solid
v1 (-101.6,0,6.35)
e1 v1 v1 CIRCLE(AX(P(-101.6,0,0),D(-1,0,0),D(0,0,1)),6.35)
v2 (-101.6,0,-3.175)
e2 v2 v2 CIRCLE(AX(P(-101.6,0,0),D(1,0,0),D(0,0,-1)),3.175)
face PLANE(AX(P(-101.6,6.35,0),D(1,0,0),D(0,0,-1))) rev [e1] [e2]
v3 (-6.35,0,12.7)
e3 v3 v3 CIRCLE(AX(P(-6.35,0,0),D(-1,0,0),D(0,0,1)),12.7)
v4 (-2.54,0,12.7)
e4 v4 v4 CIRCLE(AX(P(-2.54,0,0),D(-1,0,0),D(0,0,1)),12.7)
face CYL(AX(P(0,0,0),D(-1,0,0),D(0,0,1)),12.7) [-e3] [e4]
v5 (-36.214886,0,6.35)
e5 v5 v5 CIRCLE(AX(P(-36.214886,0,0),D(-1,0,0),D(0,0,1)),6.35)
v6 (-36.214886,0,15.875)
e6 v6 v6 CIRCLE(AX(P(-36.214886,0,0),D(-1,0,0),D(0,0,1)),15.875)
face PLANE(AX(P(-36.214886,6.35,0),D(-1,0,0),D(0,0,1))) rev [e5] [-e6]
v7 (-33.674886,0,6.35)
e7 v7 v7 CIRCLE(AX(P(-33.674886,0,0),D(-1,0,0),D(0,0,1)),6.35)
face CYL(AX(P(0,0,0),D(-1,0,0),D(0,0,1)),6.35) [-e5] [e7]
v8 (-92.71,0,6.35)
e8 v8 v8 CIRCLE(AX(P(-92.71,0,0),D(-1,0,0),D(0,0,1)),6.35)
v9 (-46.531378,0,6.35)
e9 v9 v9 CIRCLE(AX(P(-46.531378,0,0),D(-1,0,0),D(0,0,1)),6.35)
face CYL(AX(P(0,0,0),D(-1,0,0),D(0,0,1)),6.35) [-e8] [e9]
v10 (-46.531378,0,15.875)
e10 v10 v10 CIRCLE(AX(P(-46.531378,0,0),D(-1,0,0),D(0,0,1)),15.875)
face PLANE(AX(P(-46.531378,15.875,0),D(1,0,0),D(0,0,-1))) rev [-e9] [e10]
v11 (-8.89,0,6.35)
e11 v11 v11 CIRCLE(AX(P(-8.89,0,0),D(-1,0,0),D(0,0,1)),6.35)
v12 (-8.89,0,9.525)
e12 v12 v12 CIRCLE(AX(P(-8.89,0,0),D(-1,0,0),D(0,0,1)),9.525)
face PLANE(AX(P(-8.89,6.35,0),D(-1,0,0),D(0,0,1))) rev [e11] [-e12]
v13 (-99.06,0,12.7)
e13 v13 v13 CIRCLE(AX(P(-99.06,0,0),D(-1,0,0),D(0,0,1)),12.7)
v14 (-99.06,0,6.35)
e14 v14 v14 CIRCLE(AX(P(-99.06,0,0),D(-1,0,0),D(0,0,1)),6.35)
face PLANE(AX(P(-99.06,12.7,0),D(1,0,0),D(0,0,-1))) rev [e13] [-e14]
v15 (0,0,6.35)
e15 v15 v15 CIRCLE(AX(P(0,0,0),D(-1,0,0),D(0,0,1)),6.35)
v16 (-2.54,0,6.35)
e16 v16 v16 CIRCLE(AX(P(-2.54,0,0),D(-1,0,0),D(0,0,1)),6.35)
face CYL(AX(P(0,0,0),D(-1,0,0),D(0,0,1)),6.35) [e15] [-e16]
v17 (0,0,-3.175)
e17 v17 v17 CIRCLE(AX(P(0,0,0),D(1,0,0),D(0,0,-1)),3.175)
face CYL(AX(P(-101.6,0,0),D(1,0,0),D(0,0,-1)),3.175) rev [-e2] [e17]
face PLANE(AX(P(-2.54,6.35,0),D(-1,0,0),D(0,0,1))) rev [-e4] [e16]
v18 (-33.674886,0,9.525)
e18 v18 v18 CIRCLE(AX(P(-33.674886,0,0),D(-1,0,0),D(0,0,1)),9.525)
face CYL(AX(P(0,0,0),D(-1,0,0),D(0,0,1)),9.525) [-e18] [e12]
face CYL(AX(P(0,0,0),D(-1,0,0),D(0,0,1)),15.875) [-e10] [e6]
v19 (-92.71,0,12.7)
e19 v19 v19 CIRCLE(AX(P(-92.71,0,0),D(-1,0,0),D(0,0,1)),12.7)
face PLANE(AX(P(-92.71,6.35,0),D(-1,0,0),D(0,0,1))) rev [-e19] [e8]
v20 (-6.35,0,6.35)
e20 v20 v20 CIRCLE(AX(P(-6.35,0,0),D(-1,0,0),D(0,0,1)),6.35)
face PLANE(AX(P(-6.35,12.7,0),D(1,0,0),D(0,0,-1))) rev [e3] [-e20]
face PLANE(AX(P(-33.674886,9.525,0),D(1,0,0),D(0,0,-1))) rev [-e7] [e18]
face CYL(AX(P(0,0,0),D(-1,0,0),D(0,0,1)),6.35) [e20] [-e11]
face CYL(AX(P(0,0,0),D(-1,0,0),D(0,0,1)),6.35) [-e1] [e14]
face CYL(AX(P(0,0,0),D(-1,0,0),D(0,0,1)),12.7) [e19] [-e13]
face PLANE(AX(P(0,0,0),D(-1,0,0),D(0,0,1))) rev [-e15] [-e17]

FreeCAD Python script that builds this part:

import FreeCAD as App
import Part
import Sketcher
Q = App.Units.Quantity

doc = App.newDocument("Part")
body = doc.addObject("PartDesign::Body", "Body")

sketch1 = body.newObject("Sketcher::SketchObject", "Sketch")
sketch1.AttachmentSupport = (doc.getObject("XY_Plane"), [""])
sketch1.MapMode = "FlatFace"
sketch1.addGeometry(Part.LineSegment(App.Vector(0, 0, 0), App.Vector(0, 6.35, 0)), False)
sketch1.addGeometry(Part.LineSegment(App.Vector(0, 6.35, 0), App.Vector(-2.54, 6.35, 0)), False)
sketch1.addGeometry(Part.LineSegment(App.Vector(-2.54, 6.35, 0), App.Vector(-2.54, 12.7, 0)), False)
sketch1.addGeometry(Part.LineSegment(App.Vector(-2.54, 12.7, 0), App.Vector(-6.35, 12.7, 0)), False)
sketch1.addGeometry(Part.LineSegment(App.Vector(-6.35, 12.7, 0), App.Vector(-6.35, 6.35, 0)), False)
sketch1.addGeometry(Part.LineSegment(App.Vector(-6.35, 6.35, 0), App.Vector(-8.89, 6.35, 0)), False)
sketch1.addGeometry(Part.LineSegment(App.Vector(-8.89, 6.35, 0), App.Vector(-8.89, 9.525, 0)), False)
sketch1.addGeometry(Part.LineSegment(App.Vector(-8.89, 9.525, 0), App.Vector(-33.674886, 9.525, 0)), False)
sketch1.addGeometry(Part.LineSegment(App.Vector(-33.674886, 9.525, 0), App.Vector(-33.674886, 6.35, 0)), False)
sketch1.addGeometry(Part.LineSegment(App.Vector(-33.674886, 6.35, 0), App.Vector(-36.214886, 6.35, 0)), False)
sketch1.addGeometry(Part.LineSegment(App.Vector(-36.214886, 6.35, 0), App.Vector(-36.214886, 15.875, 0)), False)
sketch1.addGeometry(Part.LineSegment(App.Vector(-36.214886, 15.875, 0), App.Vector(-46.531378, 15.875, 0)), False)
sketch1.addGeometry(Part.LineSegment(App.Vector(-46.531378, 15.875, 0), App.Vector(-46.531378, 6.35, 0)), False)
sketch1.addGeometry(Part.LineSegment(App.Vector(-46.531378, 6.35, 0), App.Vector(-92.71, 6.35, 0)), False)
sketch1.addGeometry(Part.LineSegment(App.Vector(-92.71, 6.35, 0), App.Vector(-92.71, 12.7, 0)), False)
sketch1.addGeometry(Part.LineSegment(App.Vector(-92.71, 12.7, 0), App.Vector(-99.06, 12.7, 0)), False)
sketch1.addGeometry(Part.LineSegment(App.Vector(-99.06, 12.7, 0), App.Vector(-99.06, 6.35, 0)), False)
sketch1.addGeometry(Part.LineSegment(App.Vector(-99.06, 6.35, 0), App.Vector(-101.6, 6.35, 0)), False)
sketch1.addGeometry(Part.LineSegment(App.Vector(-101.6, 6.35, 0), App.Vector(-101.6, 0, 0)), False)
sketch1.addGeometry(Part.LineSegment(App.Vector(-101.6, 0, 0), App.Vector(0, 0, 0)), False)
sketch1.addConstraint(Sketcher.Constraint("Coincident", 0, 2, 1, 1))
sketch1.addConstraint(Sketcher.Constraint("Coincident", 1, 2, 2, 1))
sketch1.addConstraint(Sketcher.Constraint("Coincident", 2, 2, 3, 1))
sketch1.addConstraint(Sketcher.Constraint("Coincident", 3, 2, 4, 1))
sketch1.addConstraint(Sketcher.Constraint("Coincident", 4, 2, 5, 1))
sketch1.addConstraint(Sketcher.Constraint("Coincident", 5, 2, 6, 1))
sketch1.addConstraint(Sketcher.Constraint("Coincident", 6, 2, 7, 1))
sketch1.addConstraint(Sketcher.Constraint("Coincident", 7, 2, 8, 1))
sketch1.addConstraint(Sketcher.Constraint("Coincident", 8, 2, 9, 1))
sketch1.addConstraint(Sketcher.Constraint("Coincident", 9, 2, 10, 1))
sketch1.addConstraint(Sketcher.Constraint("Coincident", 10, 2, 11, 1))
sketch1.addConstraint(Sketcher.Constraint("Coincident", 11, 2, 12, 1))
sketch1.addConstraint(Sketcher.Constraint("Coincident", 12, 2, 13, 1))
sketch1.addConstraint(Sketcher.Constraint("Coincident", 13, 2, 14, 1))
sketch1.addConstraint(Sketcher.Constraint("Coincident", 14, 2, 15, 1))
sketch1.addConstraint(Sketcher.Constraint("Coincident", 15, 2, 16, 1))
sketch1.addConstraint(Sketcher.Constraint("Coincident", 16, 2, 17, 1))
sketch1.addConstraint(Sketcher.Constraint("Coincident", 17, 2, 18, 1))
sketch1.addConstraint(Sketcher.Constraint("Coincident", 18, 2, 19, 1))
sketch1.addConstraint(Sketcher.Constraint("Coincident", 19, 2, 0, 1))
sketch1.addConstraint(Sketcher.Constraint("Vertical", 0))
sketch1.addConstraint(Sketcher.Constraint("Horizontal", 1))
sketch1.addConstraint(Sketcher.Constraint("Vertical", 2))
sketch1.addConstraint(Sketcher.Constraint("Horizontal", 3))
sketch1.addConstraint(Sketcher.Constraint("Vertical", 4))
sketch1.addConstraint(Sketcher.Constraint("Horizontal", 5))
sketch1.addConstraint(Sketcher.Constraint("Vertical", 6))
sketch1.addConstraint(Sketcher.Constraint("Horizontal", 7))
sketch1.addConstraint(Sketcher.Constraint("Vertical", 8))
sketch1.addConstraint(Sketcher.Constraint("Horizontal", 9))
sketch1.addConstraint(Sketcher.Constraint("Vertical", 10))
sketch1.addConstraint(Sketcher.Constraint("Horizontal", 11))
sketch1.addConstraint(Sketcher.Constraint("Vertical", 12))
sketch1.addConstraint(Sketcher.Constraint("Horizontal", 13))
sketch1.addConstraint(Sketcher.Constraint("Vertical", 14))
sketch1.addConstraint(Sketcher.Constraint("Horizontal", 15))
sketch1.addConstraint(Sketcher.Constraint("Vertical", 16))
sketch1.addConstraint(Sketcher.Constraint("Horizontal", 17))
sketch1.addConstraint(Sketcher.Constraint("Vertical", 18))
sketch1.addConstraint(Sketcher.Constraint("Horizontal", 19))
sketch1.addConstraint(Sketcher.Constraint("Coincident", 19, 2, -1, 1))
sketch1.addConstraint(Sketcher.Constraint("Horizontal", 1, 2, 4, 2))
sketch1.addConstraint(Sketcher.Constraint("Horizontal", 5, 2, 8, 2))
sketch1.addConstraint(Sketcher.Constraint("Horizontal", 9, 2, 12, 2))
sketch1.addConstraint(Sketcher.Constraint("Horizontal", 3, 2, 14, 2))
sketch1.addConstraint(Sketcher.Constraint("Horizontal", 13, 2, 16, 2))
sketch1.addConstraint(Sketcher.Constraint("Equal", 1, 5))
sketch1.addConstraint(Sketcher.Constraint("Equal", 5, 9))
sketch1.addConstraint(Sketcher.Constraint("Equal", 9, 17))
sketch1.addConstraint(Sketcher.Constraint("Equal", 15, 0))
sketch1.addConstraint(Sketcher.Constraint("Equal", 0, 2))
sketch1.addConstraint(Sketcher.Constraint("DistanceX", 19, 1, 19, 2, Q("4 in")))
sketch1.addConstraint(Sketcher.Constraint("DistanceX", 1, 2, 1, 1, Q("0.1 in")))
sketch1.addConstraint(Sketcher.Constraint("DistanceX", 3, 2, 3, 1, Q("0.15 in")))
sketch1.addConstraint(Sketcher.Constraint("DistanceX", 15, 2, 15, 1, Q("0.25 in")))
sketch1.addConstraint(Sketcher.Constraint("DistanceY", 6, 1, 6, 2, Q("0.125 in")))
sketch1.addConstraint(Sketcher.Constraint("DistanceY", 10, 1, 10, 2, Q("0.375 in")))
sketch1.addConstraint(Sketcher.Constraint("DistanceX", 13, 2, 13, 1, Q("46.178622 mm")))
sketch1.addConstraint(Sketcher.Constraint("DistanceX", 7, 2, 7, 1, Q("24.784886 mm")))
revolution = body.newObject("PartDesign::Revolution", "Revolution")
revolution.Profile = sketch1
revolution.ReferenceAxis = (sketch1, ["H_Axis"])
revolution.Angle = 360

sketch2 = body.newObject("Sketcher::SketchObject", "Sketch001")
sketch2.AttachmentSupport = (doc.getObject("YZ_Plane"), [""])
sketch2.MapMode = "FlatFace"
sketch2.addGeometry(Part.Circle(App.Vector(0, 0, 0), App.Vector(0, 0, 1), 3.175), False)
sketch2.addConstraint(Sketcher.Constraint("Coincident", 0, 3, -1, 1))
sketch2.addConstraint(Sketcher.Constraint("Diameter", 0, Q("0.25 in")))
pocket1 = body.newObject("PartDesign::Pocket", "Pocket")
pocket1.Profile = sketch2
pocket1.Type = "ThroughAll"
pocket1.Midplane = True

doc.recompute()
